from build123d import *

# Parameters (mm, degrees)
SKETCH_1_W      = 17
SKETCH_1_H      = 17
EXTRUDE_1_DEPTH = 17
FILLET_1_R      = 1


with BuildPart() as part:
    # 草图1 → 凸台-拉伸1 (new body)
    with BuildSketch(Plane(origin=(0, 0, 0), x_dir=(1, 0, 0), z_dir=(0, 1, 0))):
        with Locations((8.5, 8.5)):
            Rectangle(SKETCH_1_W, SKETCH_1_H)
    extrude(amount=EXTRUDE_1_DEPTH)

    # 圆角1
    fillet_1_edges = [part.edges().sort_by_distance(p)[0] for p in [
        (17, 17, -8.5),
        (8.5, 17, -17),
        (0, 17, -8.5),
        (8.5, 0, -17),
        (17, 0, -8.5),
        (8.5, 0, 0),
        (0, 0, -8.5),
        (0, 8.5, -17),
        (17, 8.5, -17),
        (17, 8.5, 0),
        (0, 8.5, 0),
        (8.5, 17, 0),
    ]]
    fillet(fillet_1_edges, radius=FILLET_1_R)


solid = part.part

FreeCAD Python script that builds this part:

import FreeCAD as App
import Part
import Sketcher
Q = App.Units.Quantity

doc = App.newDocument("Part")
params = doc.addObject("Spreadsheet::Sheet", "Params")
for row, (alias, value) in enumerate([
    ("sketch1_width", "17 mm"),
    ("pad1_length", "17 mm"),
    ("fillet_radius", "1 mm"),
], start=1):
    params.set(f"A{row}", alias)
    params.set(f"B{row}", "=" + value)
    params.setAlias(f"B{row}", alias)

body = doc.addObject("PartDesign::Body", "Body")

# Sketch on XZ plane
sketch1 = doc.addObject("Sketcher::SketchObject", "Sketch")
body.addObject(sketch1)
sketch1.AttachmentSupport = (doc.XZ_Plane, [""])
sketch1.MapMode = "FlatFace"
sketch1.addGeometry([
    Part.LineSegment(App.Vector(0, -17, 0), App.Vector(0, 0, 0)),
    Part.LineSegment(App.Vector(0, 0, 0), App.Vector(17, 0, 0)),
    Part.LineSegment(App.Vector(17, 0, 0), App.Vector(17, -17, 0)),
    Part.LineSegment(App.Vector(17, -17, 0), App.Vector(0, -17, 0)),
], False)
sketch1.addConstraint([
    Sketcher.Constraint("Coincident", 0, 2, 1, 1),
    Sketcher.Constraint("Coincident", 1, 2, 2, 1),
    Sketcher.Constraint("Coincident", 2, 2, 3, 1),
    Sketcher.Constraint("Coincident", 3, 2, 0, 1),
    Sketcher.Constraint("Vertical", 0),
    Sketcher.Constraint("Horizontal", 1),
    Sketcher.Constraint("Vertical", 2),
    Sketcher.Constraint("Horizontal", 3),
    Sketcher.Constraint("Coincident", 0, 2, -1, 1),
    Sketcher.Constraint("Equal", 3, 0),
    Sketcher.Constraint("DistanceX", 1, 1, 1, 2, Q("17 mm")),
])
sketch1.setExpression("Constraints[10]", "Params.sketch1_width")
pad1 = doc.addObject("PartDesign::Pad", "Pad")
body.addObject(pad1)
pad1.Profile = sketch1
pad1.setExpression("Length", "Params.pad1_length")
pad1.Reversed = True
doc.recompute()

fillet = doc.addObject("PartDesign::Fillet", "Fillet")
body.addObject(fillet)
fillet.Base = (pad1, ["Edge1"])
fillet.UseAllEdges = True
fillet.setExpression("Radius", "Params.fillet_radius")

doc.recompute()
